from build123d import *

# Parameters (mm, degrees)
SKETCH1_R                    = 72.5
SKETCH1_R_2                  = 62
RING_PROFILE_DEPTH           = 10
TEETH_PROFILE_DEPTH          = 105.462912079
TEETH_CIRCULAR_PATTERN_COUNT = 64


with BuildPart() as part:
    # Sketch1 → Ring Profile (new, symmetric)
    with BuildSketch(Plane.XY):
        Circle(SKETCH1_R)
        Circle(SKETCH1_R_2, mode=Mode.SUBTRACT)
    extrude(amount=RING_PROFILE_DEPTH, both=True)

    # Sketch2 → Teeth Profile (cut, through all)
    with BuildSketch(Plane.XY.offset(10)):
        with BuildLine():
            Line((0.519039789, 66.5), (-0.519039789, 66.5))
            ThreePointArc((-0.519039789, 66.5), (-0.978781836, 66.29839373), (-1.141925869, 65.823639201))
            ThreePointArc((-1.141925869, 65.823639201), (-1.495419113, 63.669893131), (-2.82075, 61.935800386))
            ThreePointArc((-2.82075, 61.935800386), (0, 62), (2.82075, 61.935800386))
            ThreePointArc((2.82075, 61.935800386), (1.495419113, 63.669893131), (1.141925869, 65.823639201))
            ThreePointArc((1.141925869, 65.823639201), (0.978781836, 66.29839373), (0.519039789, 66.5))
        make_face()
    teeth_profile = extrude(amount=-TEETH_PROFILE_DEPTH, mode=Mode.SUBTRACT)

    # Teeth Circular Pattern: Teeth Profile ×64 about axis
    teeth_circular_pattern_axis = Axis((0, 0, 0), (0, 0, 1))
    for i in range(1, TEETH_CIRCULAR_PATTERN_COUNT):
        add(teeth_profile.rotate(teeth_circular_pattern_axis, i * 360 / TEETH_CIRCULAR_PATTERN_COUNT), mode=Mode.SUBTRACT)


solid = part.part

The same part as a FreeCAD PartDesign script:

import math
import FreeCAD as App
import Part
import Sketcher
from FreeCAD import Vector
Q = App.Units.Quantity

doc = App.newDocument("Part")
params = doc.addObject("Spreadsheet::Sheet", "Params")
for row, (alias, value) in enumerate([
    ("sketch1_diameter", "145 mm"),
    ("sketch1_diameter2", "124 mm"),
    ("pad1_length", "20 mm"),
    ("sketch2_radius", "62 mm"),
    ("sketch2_radius2", "4.5 mm"),
], start=1):
    params.set(f"A{row}", alias)
    params.set(f"B{row}", "=" + value)
    params.setAlias(f"B{row}", alias)

body = doc.addObject("PartDesign::Body", "Body")

# Sketch on XY plane
sketch1 = doc.addObject("Sketcher::SketchObject", "Sketch")
body.addObject(sketch1)
sketch1.AttachmentSupport = (doc.XY_Plane, [""])
sketch1.MapMode = "FlatFace"
sketch1.addGeometry([
    Part.Circle(Vector(0, 0, 0), Vector(0, 0, 1), 72),
    Part.Circle(Vector(0, 0, 0), Vector(0, 0, 1), 62),
], False)
sketch1.addConstraint([
    Sketcher.Constraint("Coincident", 0, 3, -1, 1),
    Sketcher.Constraint("Coincident", 1, 3, -1, 1),
    Sketcher.Constraint("Diameter", 0, Q("145 mm")),
    Sketcher.Constraint("Diameter", 1, Q("124 mm")),
])
sketch1.setExpression("Constraints[2]", "Params.sketch1_diameter")
sketch1.setExpression("Constraints[3]", "Params.sketch1_diameter2")
pad1 = doc.addObject("PartDesign::Pad", "Pad")
body.addObject(pad1)
pad1.Profile = sketch1
pad1.setExpression("Length", "Params.pad1_length")
pad1.Midplane = True

# Sketch on XY plane
sketch2 = doc.addObject("Sketcher::SketchObject", "Sketch001")
body.addObject(sketch2)
sketch2.AttachmentSupport = (doc.XY_Plane, [""])
sketch2.MapMode = "FlatFace"
sketch2.AttachmentOffset = App.Placement(Vector(0, 0, 10), App.Rotation())
sketch2.addGeometry([
    Part.LineSegment(Vector(0.5, 66.5, 0), Vector(-0.5, 66.5, 0)),  # 0
    Part.ArcOfCircle(Part.Circle(Vector(-0.5, 65.9, 0), Vector(0, 0, 1), 0.6), math.radians(90), math.radians(185)),  # 1
    Part.ArcOfCircle(Part.Circle(Vector(-5.6, 65.5, 0), Vector(0, 0, 1), 4.5), math.radians(-51), math.radians(5)),  # 2
    Part.ArcOfCircle(Part.Circle(Vector(0, 0, 0), Vector(0, 0, 1), 62), math.radians(87.39), math.radians(92.61)),  # 3
    Part.ArcOfCircle(Part.Circle(Vector(5.6, 65.5, 0), Vector(0, 0, 1), 4.5), math.radians(175), math.radians(231)),  # 4
    Part.ArcOfCircle(Part.Circle(Vector(0.5, 65.9, 0), Vector(0, 0, 1), 0.6), math.radians(-5), math.radians(90)),  # 5
], False)
sketch2.addConstraint([
    Sketcher.Constraint("Tangent", 0, 2, 1, 1),
    Sketcher.Constraint("Tangent", 1, 2, 2, 2),
    Sketcher.Constraint("Coincident", 2, 1, 3, 2),
    Sketcher.Constraint("Coincident", 3, 1, 4, 2),
    Sketcher.Constraint("Tangent", 4, 1, 5, 1),
    Sketcher.Constraint("Tangent", 5, 2, 0, 1),
    Sketcher.Constraint("Horizontal", 0),
    Sketcher.Constraint("Coincident", 3, 3, -1, 1),
    Sketcher.Constraint("Equal", 2, 4),
    Sketcher.Constraint("Equal", 1, 5),
    Sketcher.Constraint("Symmetric", 2, 3, 4, 3, -2),
    Sketcher.Constraint("Radius", 3, Q("62 mm")),
    Sketcher.Constraint("Radius", 2, Q("4.5 mm")),
    Sketcher.Constraint("Radius", 1, Q("0.625 mm")),
    Sketcher.Constraint("DistanceY", -1, 1, 0, 2, Q("66.5 mm")),
    Sketcher.Constraint("DistanceX", 0, 2, 0, 1, Q("1.03808 mm")),
    Sketcher.Constraint("DistanceY", -1, 1, 2, 1, Q("61.9358 mm")),
])
sketch2.setExpression("Constraints[11]", "Params.sketch2_radius")
sketch2.setExpression("Constraints[12]", "Params.sketch2_radius2")
pocket1 = doc.addObject("PartDesign::Pocket", "Pocket")
body.addObject(pocket1)
pocket1.Profile = sketch2
pocket1.Type = "ThroughAll"
doc.recompute()

polarpattern = doc.addObject("PartDesign::PolarPattern", "PolarPattern")
body.addObject(polarpattern)
polarpattern.Originals = [pocket1]
polarpattern.Axis = (doc.Z_Axis, [""])
polarpattern.Angle = 360
polarpattern.Occurrences = 64
body.Tip = polarpattern

doc.recompute()
